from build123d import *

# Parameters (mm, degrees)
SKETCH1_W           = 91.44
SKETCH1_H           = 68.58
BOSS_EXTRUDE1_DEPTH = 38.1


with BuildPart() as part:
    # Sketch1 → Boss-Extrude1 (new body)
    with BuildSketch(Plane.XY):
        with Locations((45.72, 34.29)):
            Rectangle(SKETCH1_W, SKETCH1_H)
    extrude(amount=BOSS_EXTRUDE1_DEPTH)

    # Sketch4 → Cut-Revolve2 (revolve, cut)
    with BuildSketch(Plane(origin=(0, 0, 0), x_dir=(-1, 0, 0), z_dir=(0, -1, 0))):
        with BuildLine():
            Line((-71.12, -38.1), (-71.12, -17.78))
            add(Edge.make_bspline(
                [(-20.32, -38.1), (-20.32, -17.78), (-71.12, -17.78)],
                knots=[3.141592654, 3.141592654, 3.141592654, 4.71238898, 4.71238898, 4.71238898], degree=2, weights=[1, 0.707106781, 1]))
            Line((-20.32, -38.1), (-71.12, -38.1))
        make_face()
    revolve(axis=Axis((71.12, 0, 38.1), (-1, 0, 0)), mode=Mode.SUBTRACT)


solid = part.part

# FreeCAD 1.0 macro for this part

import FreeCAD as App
import Part
import Sketcher
Q = App.Units.Quantity


def add_polygon(sketch, points):
    """Adds a closed chain of lines whose ends are joined by coincident constraints."""
    first, n = sketch.GeometryCount, len(points)
    for a, b in zip(points, points[1:] + points[:1]):
        sketch.addGeometry(Part.LineSegment(App.Vector(*a, 0), App.Vector(*b, 0)), False)
    for i in range(n):
        sketch.addConstraint(Sketcher.Constraint("Coincident", first + i, 2, first + (i + 1) % n, 1))

doc = App.newDocument("Part")
body = doc.addObject("PartDesign::Body", "Body")

# Sketch on XY plane
sketch1 = body.newObject("Sketcher::SketchObject", "Sketch")
sketch1.AttachmentSupport = (doc.getObject("XY_Plane"), [""])
sketch1.MapMode = "FlatFace"
add_polygon(sketch1, [(0, 68.58), (0, 0), (91.44, 0), (91.44, 68.58)])  # lines 0-3
sketch1.addConstraint(Sketcher.Constraint("Vertical", 0))
sketch1.addConstraint(Sketcher.Constraint("Horizontal", 1))
sketch1.addConstraint(Sketcher.Constraint("Vertical", 2))
sketch1.addConstraint(Sketcher.Constraint("Horizontal", 3))
sketch1.addConstraint(Sketcher.Constraint("Coincident", 0, 2, -1, 1))
sketch1.addConstraint(Sketcher.Constraint("DistanceX", 1, 1, 1, 2, Q("3.6 in")))
sketch1.addConstraint(Sketcher.Constraint("DistanceY", 0, 2, 0, 1, Q("2.7 in")))
pad1 = body.newObject("PartDesign::Pad", "Pad")
pad1.Profile = sketch1
pad1.Length = Q("1.5 in")

# Sketch on XZ plane
sketch2 = body.newObject("Sketcher::SketchObject", "Sketch001")
sketch2.AttachmentSupport = (doc.getObject("XZ_Plane"), [""])
sketch2.MapMode = "FlatFace"
sketch2.addGeometry(Part.LineSegment(App.Vector(71.12, 17.78, 0), App.Vector(71.12, 38.1, 0)), False)
sketch2.addGeometry(Part.LineSegment(App.Vector(71.12, 38.1, 0), App.Vector(20.32, 38.1, 0)), False)
sketch2.addGeometry(Part.BSplineCurve([App.Vector(20.32, 38.1, 0), App.Vector(20.32, 17.78, 0), App.Vector(71.12, 17.78, 0)], [3, 3], [3.141592654, 4.71238898], False, 2, [1, 0.707106781, 1], False), False)
sketch2.addGeometry(Part.LineSegment(App.Vector(71.12, 38.1, 0), App.Vector(20.32, 38.1, 0)), True)  # axis
sketch2.addConstraint(Sketcher.Constraint("Block", 2))
sketch2.addConstraint(Sketcher.Constraint("Coincident", 0, 2, 1, 1))
sketch2.addConstraint(Sketcher.Constraint("Coincident", 1, 2, 2, 1))
sketch2.addConstraint(Sketcher.Constraint("Coincident", 2, 2, 0, 1))
sketch2.addConstraint(Sketcher.Constraint("Vertical", 0))
sketch2.addConstraint(Sketcher.Constraint("Horizontal", 1))
sketch2.addConstraint(Sketcher.Constraint("Horizontal", 3))
sketch2.addConstraint(Sketcher.Constraint("Coincident", 3, 1, 0, 2))
sketch2.addConstraint(Sketcher.Constraint("Equal", 1, 3))
groove = body.newObject("PartDesign::Groove", "Groove")
groove.Profile = sketch2
groove.ReferenceAxis = (sketch2, ["Axis0"])
groove.Angle = 360

doc.recompute()
